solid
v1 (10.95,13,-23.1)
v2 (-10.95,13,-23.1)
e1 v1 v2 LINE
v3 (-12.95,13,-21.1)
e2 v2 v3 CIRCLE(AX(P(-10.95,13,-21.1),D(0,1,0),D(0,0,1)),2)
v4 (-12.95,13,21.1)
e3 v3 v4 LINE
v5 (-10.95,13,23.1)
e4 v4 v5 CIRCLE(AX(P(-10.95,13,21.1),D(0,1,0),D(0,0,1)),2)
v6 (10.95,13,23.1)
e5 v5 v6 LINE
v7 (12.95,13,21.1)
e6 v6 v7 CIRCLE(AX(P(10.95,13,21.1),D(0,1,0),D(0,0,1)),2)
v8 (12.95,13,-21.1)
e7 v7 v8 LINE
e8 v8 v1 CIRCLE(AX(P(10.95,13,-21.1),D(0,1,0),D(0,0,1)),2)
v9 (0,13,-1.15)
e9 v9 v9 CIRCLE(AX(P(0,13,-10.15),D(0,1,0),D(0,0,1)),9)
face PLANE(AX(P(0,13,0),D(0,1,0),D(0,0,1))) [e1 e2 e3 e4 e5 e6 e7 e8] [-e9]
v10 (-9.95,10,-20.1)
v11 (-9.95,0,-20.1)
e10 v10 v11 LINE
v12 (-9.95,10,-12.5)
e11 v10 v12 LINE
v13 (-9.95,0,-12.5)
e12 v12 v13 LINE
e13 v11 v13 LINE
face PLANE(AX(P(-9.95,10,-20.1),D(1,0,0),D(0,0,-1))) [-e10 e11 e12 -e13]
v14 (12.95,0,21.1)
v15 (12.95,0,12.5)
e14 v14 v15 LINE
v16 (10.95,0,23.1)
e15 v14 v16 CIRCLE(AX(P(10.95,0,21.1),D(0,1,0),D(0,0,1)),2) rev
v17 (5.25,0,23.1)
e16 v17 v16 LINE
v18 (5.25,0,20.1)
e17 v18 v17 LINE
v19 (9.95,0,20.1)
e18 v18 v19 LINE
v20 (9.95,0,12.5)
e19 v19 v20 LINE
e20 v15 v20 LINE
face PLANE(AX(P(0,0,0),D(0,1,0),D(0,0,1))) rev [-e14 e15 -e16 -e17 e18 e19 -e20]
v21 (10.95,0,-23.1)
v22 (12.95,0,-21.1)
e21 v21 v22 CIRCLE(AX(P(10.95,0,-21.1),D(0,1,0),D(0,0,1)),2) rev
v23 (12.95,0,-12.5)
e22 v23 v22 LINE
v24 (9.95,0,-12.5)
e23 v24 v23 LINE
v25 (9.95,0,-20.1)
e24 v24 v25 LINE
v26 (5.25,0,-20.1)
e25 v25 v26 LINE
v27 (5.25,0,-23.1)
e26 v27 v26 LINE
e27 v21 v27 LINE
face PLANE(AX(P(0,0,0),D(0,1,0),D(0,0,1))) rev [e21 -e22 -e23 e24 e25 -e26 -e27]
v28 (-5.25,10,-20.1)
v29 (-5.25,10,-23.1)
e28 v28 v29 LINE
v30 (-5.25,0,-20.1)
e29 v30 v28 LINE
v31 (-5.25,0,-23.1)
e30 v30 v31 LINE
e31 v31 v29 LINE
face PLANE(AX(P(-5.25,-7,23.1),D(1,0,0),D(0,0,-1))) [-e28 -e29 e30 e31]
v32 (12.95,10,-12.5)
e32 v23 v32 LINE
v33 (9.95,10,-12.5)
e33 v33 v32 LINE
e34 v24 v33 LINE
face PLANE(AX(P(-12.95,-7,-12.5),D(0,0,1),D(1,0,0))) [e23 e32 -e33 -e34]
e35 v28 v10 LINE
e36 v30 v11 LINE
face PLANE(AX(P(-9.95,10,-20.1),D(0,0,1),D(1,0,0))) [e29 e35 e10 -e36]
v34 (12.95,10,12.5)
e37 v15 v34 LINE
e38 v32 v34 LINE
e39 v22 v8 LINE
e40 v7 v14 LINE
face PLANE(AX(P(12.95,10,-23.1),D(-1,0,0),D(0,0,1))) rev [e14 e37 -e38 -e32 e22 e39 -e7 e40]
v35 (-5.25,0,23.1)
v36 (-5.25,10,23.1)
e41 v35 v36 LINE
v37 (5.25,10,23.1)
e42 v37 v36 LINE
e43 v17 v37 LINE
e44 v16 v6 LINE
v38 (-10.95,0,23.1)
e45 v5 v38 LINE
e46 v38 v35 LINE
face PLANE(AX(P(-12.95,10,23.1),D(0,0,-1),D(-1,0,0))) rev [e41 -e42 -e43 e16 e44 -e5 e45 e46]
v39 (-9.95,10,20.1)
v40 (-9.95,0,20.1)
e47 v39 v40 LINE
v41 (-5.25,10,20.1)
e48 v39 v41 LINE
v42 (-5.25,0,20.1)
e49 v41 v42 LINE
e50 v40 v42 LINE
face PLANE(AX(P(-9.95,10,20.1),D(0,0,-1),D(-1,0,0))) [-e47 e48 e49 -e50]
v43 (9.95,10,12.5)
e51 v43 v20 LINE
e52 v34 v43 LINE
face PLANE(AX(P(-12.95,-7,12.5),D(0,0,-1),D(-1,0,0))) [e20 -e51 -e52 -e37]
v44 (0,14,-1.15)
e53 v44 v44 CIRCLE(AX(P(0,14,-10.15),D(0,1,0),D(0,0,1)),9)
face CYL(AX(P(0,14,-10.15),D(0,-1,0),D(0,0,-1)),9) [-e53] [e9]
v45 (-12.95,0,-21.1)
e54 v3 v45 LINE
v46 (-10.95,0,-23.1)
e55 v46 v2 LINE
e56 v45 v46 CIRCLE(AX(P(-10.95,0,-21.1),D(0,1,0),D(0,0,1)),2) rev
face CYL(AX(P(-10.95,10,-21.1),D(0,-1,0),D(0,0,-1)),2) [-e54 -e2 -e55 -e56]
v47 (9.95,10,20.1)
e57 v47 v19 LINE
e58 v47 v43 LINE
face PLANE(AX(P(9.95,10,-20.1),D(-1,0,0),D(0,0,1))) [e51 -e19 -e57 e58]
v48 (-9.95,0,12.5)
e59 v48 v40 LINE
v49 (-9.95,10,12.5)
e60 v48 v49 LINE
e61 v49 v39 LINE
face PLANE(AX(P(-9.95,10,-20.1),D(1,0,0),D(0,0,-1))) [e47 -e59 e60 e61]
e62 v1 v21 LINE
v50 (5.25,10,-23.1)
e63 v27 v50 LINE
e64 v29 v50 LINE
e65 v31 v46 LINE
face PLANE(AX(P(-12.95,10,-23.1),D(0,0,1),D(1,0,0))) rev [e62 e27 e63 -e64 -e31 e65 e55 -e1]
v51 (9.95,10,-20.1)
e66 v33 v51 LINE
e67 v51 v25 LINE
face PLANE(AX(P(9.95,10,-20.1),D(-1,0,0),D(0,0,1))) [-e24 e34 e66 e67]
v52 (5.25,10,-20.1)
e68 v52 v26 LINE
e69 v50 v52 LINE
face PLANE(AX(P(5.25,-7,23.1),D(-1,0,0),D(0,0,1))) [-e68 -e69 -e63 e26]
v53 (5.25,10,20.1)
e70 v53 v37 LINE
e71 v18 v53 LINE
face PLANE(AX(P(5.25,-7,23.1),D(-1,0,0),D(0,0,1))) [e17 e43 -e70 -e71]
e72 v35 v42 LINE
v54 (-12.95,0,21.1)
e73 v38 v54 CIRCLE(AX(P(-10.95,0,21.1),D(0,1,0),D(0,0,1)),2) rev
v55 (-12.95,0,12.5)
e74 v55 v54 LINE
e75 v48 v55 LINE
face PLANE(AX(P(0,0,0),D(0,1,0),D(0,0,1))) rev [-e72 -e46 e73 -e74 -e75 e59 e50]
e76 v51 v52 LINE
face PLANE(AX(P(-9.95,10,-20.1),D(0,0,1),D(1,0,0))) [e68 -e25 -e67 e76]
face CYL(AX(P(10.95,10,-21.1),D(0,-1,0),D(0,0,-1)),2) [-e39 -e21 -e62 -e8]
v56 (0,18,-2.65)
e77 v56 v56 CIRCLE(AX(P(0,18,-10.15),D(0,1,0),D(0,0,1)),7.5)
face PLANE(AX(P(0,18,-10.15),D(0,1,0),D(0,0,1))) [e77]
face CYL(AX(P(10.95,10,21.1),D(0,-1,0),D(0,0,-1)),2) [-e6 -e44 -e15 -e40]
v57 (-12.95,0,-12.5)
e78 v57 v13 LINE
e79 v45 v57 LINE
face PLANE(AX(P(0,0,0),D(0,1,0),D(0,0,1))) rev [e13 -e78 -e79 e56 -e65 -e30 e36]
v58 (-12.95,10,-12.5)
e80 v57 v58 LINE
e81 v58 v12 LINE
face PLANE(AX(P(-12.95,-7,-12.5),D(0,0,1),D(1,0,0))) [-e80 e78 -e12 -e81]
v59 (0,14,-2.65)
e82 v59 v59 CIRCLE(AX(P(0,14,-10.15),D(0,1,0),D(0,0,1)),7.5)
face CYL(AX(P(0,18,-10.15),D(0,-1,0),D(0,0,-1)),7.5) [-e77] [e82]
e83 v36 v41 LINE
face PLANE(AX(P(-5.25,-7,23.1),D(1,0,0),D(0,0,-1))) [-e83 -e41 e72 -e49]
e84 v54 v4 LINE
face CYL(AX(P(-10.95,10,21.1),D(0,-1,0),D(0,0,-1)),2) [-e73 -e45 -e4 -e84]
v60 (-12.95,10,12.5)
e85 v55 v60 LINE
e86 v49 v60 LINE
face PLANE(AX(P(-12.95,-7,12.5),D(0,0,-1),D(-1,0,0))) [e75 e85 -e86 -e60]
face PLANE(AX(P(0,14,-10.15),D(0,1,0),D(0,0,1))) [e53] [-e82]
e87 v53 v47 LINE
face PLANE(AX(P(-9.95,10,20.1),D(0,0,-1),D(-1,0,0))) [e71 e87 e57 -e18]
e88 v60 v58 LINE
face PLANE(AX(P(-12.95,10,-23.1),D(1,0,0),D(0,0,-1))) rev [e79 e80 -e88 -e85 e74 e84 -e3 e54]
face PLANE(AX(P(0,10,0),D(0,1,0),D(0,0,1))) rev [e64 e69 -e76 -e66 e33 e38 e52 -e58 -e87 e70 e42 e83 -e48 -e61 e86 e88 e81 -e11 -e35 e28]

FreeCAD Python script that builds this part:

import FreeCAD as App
import Part
import Sketcher

V = App.Vector


def edges_at(feature, points):
    """Names of the edges that pass closest to the given points."""
    edges = feature.Shape.Edges
    near = lambda p: min(range(len(edges)), key=lambda i: edges[i].distToShape(Part.Vertex(*p))[0])
    return sorted({f"Edge{near(p) + 1}" for p in points})


def add_polygon(sketch, points):
    """Adds a closed chain of lines whose ends are joined by coincident constraints."""
    first, n = sketch.GeometryCount, len(points)
    for a, b in zip(points, points[1:] + points[:1]):
        sketch.addGeometry(Part.LineSegment(App.Vector(*a, 0), App.Vector(*b, 0)), False)
    for i in range(n):
        sketch.addConstraint(Sketcher.Constraint("Coincident", first + i, 2, first + (i + 1) % n, 1))

doc = App.newDocument("Part")
body = doc.addObject("PartDesign::Body", "Body")

sketch1 = body.newObject("Sketcher::SketchObject", "Sketch")
sketch1.AttachmentSupport = (doc.getObject("XZ_Plane"), [""])
sketch1.MapMode = "FlatFace"
add_polygon(sketch1, [(-13, -23), (-13, 23), (13, 23), (13, -23)])
add_polygon(sketch1, [(10, 20), (-10, 20), (-10, -20), (10, -20)])
sketch1.addConstraint(Sketcher.Constraint("Vertical", 0))
sketch1.addConstraint(Sketcher.Constraint("Horizontal", 1))
sketch1.addConstraint(Sketcher.Constraint("Vertical", 2))
sketch1.addConstraint(Sketcher.Constraint("Horizontal", 3))
sketch1.addConstraint(Sketcher.Constraint("Horizontal", 4))
sketch1.addConstraint(Sketcher.Constraint("Vertical", 5))
sketch1.addConstraint(Sketcher.Constraint("Horizontal", 6))
sketch1.addConstraint(Sketcher.Constraint("Vertical", 7))
sketch1.addConstraint(Sketcher.Constraint("Symmetric", 0, 2, 2, 2, -1, 1))
sketch1.addConstraint(Sketcher.Constraint("Symmetric", 4, 2, 6, 2, -1, 1))
sketch1.addConstraint(Sketcher.Constraint("DistanceX", 1, 1, 1, 2, 25.9))
sketch1.addConstraint(Sketcher.Constraint("DistanceX", 4, 2, 4, 1, 19.9))
sketch1.addConstraint(Sketcher.Constraint("DistanceY", 0, 1, 0, 2, 46.2))
sketch1.addConstraint(Sketcher.Constraint("DistanceY", 5, 2, 5, 1, 40.2))
pad1 = body.newObject("PartDesign::Pad", "Pad")
pad1.Profile = sketch1
pad1.Length = 10
pad1.Reversed = True

sketch2 = body.newObject("Sketcher::SketchObject", "Sketch001")
sketch2.AttachmentSupport = (doc.getObject("XZ_Plane"), [""])
sketch2.MapMode = "FlatFace"
sketch2.AttachmentOffset = App.Placement(V(0, 0, -10), App.Rotation())
add_polygon(sketch2, [(-13, -23), (-13, 23), (13, 23), (13, -23)])
sketch2.addConstraint(Sketcher.Constraint("Vertical", 0))
sketch2.addConstraint(Sketcher.Constraint("Horizontal", 1))
sketch2.addConstraint(Sketcher.Constraint("Vertical", 2))
sketch2.addConstraint(Sketcher.Constraint("Horizontal", 3))
sketch2.addConstraint(Sketcher.Constraint("Symmetric", 0, 2, 2, 2, -1, 1))
sketch2.addConstraint(Sketcher.Constraint("DistanceX", 1, 1, 1, 2, 25.9))
sketch2.addConstraint(Sketcher.Constraint("DistanceY", 0, 1, 0, 2, 46.2))
pad2 = body.newObject("PartDesign::Pad", "Pad001")
pad2.Profile = sketch2
pad2.Length = 3
pad2.Reversed = True

sketch3 = body.newObject("Sketcher::SketchObject", "Sketch002")
sketch3.AttachmentSupport = (doc.getObject("XZ_Plane"), [""])
sketch3.MapMode = "FlatFace"
sketch3.AttachmentOffset = App.Placement(V(0, 0, -10), App.Rotation())
add_polygon(sketch3, [(-5, 23), (-5, -23), (5, -23), (5, 23)])
sketch3.addConstraint(Sketcher.Constraint("Vertical", 0))
sketch3.addConstraint(Sketcher.Constraint("Horizontal", 1))
sketch3.addConstraint(Sketcher.Constraint("Vertical", 2))
sketch3.addConstraint(Sketcher.Constraint("Horizontal", 3))
sketch3.addConstraint(Sketcher.Constraint("Symmetric", 0, 2, 2, 2, -1, 1))
sketch3.addConstraint(Sketcher.Constraint("DistanceX", 1, 1, 1, 2, 10.5))
sketch3.addConstraint(Sketcher.Constraint("DistanceY", 0, 2, 0, 1, 46.2))
pocket1 = body.newObject("PartDesign::Pocket", "Pocket")
pocket1.Profile = sketch3
pocket1.Length = 17
pocket1.Reversed = True

sketch4 = body.newObject("Sketcher::SketchObject", "Sketch003")
sketch4.AttachmentSupport = (doc.getObject("XZ_Plane"), [""])
sketch4.MapMode = "FlatFace"
sketch4.AttachmentOffset = App.Placement(V(0, 0, -10), App.Rotation())
add_polygon(sketch4, [(-13, 12), (-13, -12), (13, -12), (13, 12)])
sketch4.addConstraint(Sketcher.Constraint("Vertical", 0))
sketch4.addConstraint(Sketcher.Constraint("Horizontal", 1))
sketch4.addConstraint(Sketcher.Constraint("Vertical", 2))
sketch4.addConstraint(Sketcher.Constraint("Horizontal", 3))
sketch4.addConstraint(Sketcher.Constraint("Symmetric", 0, 2, 2, 2, -1, 1))
sketch4.addConstraint(Sketcher.Constraint("DistanceY", 0, 2, 0, 1, 25.0))
sketch4.addConstraint(Sketcher.Constraint("DistanceX", 1, 1, 1, 2, 25.9))
pocket2 = body.newObject("PartDesign::Pocket", "Pocket001")
pocket2.Profile = sketch4
pocket2.Length = 17
pocket2.Reversed = True

sketch5 = body.newObject("Sketcher::SketchObject", "Sketch004")
sketch5.AttachmentSupport = (doc.getObject("XZ_Plane"), [""])
sketch5.MapMode = "FlatFace"
sketch5.AttachmentOffset = App.Placement(V(0, 0, -13), App.Rotation())
sketch5.addGeometry(Part.Circle(V(0, -10, 0), V(0, 0, 1), 8), False)
sketch5.addConstraint(Sketcher.Constraint("PointOnObject", 0, 3, -2))
sketch5.addConstraint(Sketcher.Constraint("Diameter", 0, 15.0))
sketch5.addConstraint(Sketcher.Constraint("DistanceY", 0, 3, -1, 1, 10.15))
pad3 = body.newObject("PartDesign::Pad", "Pad002")
pad3.Profile = sketch5
pad3.Length = 5
pad3.Reversed = True

sketch6 = body.newObject("Sketcher::SketchObject", "Sketch005")
sketch6.AttachmentSupport = (doc.getObject("XZ_Plane"), [""])
sketch6.MapMode = "FlatFace"
sketch6.AttachmentOffset = App.Placement(V(0, 0, -13), App.Rotation())
sketch6.addGeometry(Part.Circle(V(0, -10, 0), V(0, 0, 1), 9), False)
sketch6.addConstraint(Sketcher.Constraint("PointOnObject", 0, 3, -2))
sketch6.addConstraint(Sketcher.Constraint("Diameter", 0, 18.0))
sketch6.addConstraint(Sketcher.Constraint("DistanceY", 0, 3, -1, 1, 10.15))
pad4 = body.newObject("PartDesign::Pad", "Pad003")
pad4.Profile = sketch6
pad4.Length = 1
pad4.Reversed = True
doc.recompute()

fillet = body.newObject("PartDesign::Fillet", "Fillet")
fillet.Base = (pad4, edges_at(pad4, [
    (12.95, 6.5, 23.1),
    (-12.95, 6.5, 23.1),
    (-12.95, 6.5, -23.1),
    (12.95, 6.5, -23.1),
]))
fillet.Radius = 2

doc.recompute()
